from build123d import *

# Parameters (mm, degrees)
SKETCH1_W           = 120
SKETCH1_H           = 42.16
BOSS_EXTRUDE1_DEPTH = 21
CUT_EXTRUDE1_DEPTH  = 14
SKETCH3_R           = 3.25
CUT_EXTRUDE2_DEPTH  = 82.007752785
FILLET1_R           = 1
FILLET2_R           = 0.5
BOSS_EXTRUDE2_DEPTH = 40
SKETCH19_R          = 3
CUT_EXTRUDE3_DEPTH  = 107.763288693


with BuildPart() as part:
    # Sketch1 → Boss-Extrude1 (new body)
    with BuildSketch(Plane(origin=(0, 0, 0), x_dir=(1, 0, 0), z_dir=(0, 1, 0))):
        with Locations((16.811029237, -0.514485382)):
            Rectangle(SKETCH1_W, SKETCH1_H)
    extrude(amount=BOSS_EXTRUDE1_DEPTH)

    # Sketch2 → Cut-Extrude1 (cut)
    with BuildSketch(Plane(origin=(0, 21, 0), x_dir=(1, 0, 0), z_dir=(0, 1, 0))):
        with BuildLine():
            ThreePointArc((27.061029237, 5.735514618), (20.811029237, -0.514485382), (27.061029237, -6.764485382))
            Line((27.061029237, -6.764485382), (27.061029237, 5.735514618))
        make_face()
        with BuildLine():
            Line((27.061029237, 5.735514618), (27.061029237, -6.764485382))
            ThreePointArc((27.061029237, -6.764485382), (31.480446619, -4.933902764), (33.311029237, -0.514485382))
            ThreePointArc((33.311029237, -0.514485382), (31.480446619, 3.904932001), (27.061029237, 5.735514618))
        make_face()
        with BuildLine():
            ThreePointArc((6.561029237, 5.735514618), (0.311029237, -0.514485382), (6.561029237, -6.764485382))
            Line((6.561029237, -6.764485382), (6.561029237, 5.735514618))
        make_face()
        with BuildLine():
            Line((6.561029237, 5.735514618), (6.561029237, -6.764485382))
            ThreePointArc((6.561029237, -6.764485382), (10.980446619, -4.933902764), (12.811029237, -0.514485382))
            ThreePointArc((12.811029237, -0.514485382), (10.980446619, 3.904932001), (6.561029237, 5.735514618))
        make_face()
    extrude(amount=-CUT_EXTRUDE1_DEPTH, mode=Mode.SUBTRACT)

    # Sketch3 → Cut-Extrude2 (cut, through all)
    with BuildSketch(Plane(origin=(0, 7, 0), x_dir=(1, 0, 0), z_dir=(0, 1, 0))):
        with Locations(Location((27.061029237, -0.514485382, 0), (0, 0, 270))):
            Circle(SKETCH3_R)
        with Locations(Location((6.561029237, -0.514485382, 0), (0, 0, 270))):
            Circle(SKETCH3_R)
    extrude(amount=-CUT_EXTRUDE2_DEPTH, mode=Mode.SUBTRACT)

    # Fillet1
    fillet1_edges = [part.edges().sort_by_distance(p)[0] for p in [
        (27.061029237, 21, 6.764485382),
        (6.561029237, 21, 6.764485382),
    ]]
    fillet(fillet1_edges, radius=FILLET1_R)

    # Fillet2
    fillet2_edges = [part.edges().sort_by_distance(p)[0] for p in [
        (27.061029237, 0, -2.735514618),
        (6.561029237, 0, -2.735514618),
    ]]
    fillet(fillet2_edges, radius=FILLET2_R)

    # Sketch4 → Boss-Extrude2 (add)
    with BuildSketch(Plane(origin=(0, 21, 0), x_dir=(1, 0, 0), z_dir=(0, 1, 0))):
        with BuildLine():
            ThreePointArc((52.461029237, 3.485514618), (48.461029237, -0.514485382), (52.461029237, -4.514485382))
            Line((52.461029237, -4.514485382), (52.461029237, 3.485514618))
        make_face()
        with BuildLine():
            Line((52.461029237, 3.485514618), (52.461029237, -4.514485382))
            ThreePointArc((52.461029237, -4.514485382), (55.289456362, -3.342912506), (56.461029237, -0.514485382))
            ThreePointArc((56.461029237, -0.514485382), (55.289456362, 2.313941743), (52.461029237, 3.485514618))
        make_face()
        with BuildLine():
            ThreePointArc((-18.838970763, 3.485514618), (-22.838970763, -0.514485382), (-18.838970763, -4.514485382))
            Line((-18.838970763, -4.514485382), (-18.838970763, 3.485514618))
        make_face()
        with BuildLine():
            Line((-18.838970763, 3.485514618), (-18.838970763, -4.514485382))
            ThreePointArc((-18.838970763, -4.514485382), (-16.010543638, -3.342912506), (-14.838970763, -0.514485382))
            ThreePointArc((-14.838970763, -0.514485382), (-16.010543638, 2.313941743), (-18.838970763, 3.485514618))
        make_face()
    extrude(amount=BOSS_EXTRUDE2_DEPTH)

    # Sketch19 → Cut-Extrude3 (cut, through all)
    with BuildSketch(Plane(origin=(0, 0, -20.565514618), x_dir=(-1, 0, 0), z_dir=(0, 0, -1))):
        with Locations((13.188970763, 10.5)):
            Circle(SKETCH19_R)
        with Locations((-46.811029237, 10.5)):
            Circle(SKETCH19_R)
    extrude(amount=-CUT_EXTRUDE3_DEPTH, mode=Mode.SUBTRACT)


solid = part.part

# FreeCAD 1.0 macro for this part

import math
import FreeCAD as App
import Part
import Sketcher
from FreeCAD import Vector


def edges_at(feature, points):
    """Names of the edges that pass closest to the given points."""
    edges = feature.Shape.Edges
    near = lambda p: min(range(len(edges)), key=lambda i: edges[i].distToShape(Part.Vertex(*p))[0])
    return sorted({f"Edge{near(p) + 1}" for p in points})

doc = App.newDocument("Part")
params = doc.addObject("Spreadsheet::Sheet", "Params")
for row, (alias, value) in enumerate([
    ("sketch1_width", "120 mm"),
    ("sketch1_height", "42.16 mm"),
    ("pad1_length", "21 mm"),
    ("sketch2_radius", "6.25 mm"),
    ("pocket1_length", "14 mm"),
    ("sketch3_diameter", "6.5 mm"),
    ("fillet_radius", "1 mm"),
    ("fillet2_radius", "0.5 mm"),
    ("sketch4_radius", "4 mm"),
    ("pad2_length", "40 mm"),
    ("sketch5_diameter", "6 mm"),
], start=1):
    params.set(f"A{row}", alias)
    params.set(f"B{row}", "=" + value)
    params.setAlias(f"B{row}", alias)

body = doc.addObject("PartDesign::Body", "Body")

# Sketch on XZ plane
sketch1 = body.newObject("Sketcher::SketchObject", "Sketch")
sketch1.AttachmentSupport = (doc.getObject("XZ_Plane"), [""])
sketch1.MapMode = "FlatFace"
sketch1.addGeometry(Part.LineSegment(Vector(-43, -21, 0), Vector(-43, 22, 0)), False)
sketch1.addGeometry(Part.LineSegment(Vector(-43, 22, 0), Vector(77, 22, 0)), False)
sketch1.addGeometry(Part.LineSegment(Vector(77, 22, 0), Vector(77, -21, 0)), False)
sketch1.addGeometry(Part.LineSegment(Vector(77, -21, 0), Vector(-43, -21, 0)), False)
sketch1.addConstraint(Sketcher.Constraint("Coincident", 0, 2, 1, 1))
sketch1.addConstraint(Sketcher.Constraint("Coincident", 1, 2, 2, 1))
sketch1.addConstraint(Sketcher.Constraint("Coincident", 2, 2, 3, 1))
sketch1.addConstraint(Sketcher.Constraint("Coincident", 3, 2, 0, 1))
sketch1.addConstraint(Sketcher.Constraint("Vertical", 0))
sketch1.addConstraint(Sketcher.Constraint("Horizontal", 1))
sketch1.addConstraint(Sketcher.Constraint("Vertical", 2))
sketch1.addConstraint(Sketcher.Constraint("Horizontal", 3))
sketch1.addConstraint(Sketcher.Constraint("DistanceX", 1, 1, 1, 2, 120.0))
sketch1.addConstraint(Sketcher.Constraint("DistanceY", 0, 1, 0, 2, 42.16))
sketch1.addConstraint(Sketcher.Constraint("DistanceX", 0, 2, -1, 1, 43.188971))
sketch1.addConstraint(Sketcher.Constraint("DistanceY", -1, 1, 0, 2, 21.594485))
sketch1.setExpression("Constraints[8]", "Params.sketch1_width")
sketch1.setExpression("Constraints[9]", "Params.sketch1_height")
pad1 = body.newObject("PartDesign::Pad", "Pad")
pad1.Profile = sketch1
pad1.setExpression("Length", "Params.pad1_length")
pad1.Reversed = True

# Sketch on XZ plane
sketch2 = body.newObject("Sketcher::SketchObject", "Sketch001")
sketch2.AttachmentSupport = (doc.getObject("XZ_Plane"), [""])
sketch2.MapMode = "FlatFace"
sketch2.AttachmentOffset = App.Placement(Vector(0, 0, -21), App.Rotation())
sketch2.addGeometry(Part.ArcOfCircle(Part.Circle(Vector(27, 1, 0), Vector(0, 0, 1), 6), math.radians(90), math.radians(270)), False)
sketch2.addGeometry(Part.ArcOfCircle(Part.Circle(Vector(27, 1, 0), Vector(0, 0, 1), 6), math.radians(0), math.radians(90)), False)
sketch2.addGeometry(Part.ArcOfCircle(Part.Circle(Vector(27, 1, 0), Vector(0, 0, 1), 6), math.radians(-90), math.radians(0)), False)
sketch2.addGeometry(Part.ArcOfCircle(Part.Circle(Vector(7, 1, 0), Vector(0, 0, 1), 6), math.radians(90), math.radians(270)), False)
sketch2.addGeometry(Part.ArcOfCircle(Part.Circle(Vector(7, 1, 0), Vector(0, 0, 1), 6), math.radians(0), math.radians(90)), False)
sketch2.addGeometry(Part.ArcOfCircle(Part.Circle(Vector(7, 1, 0), Vector(0, 0, 1), 6), math.radians(-90), math.radians(0)), False)
sketch2.addConstraint(Sketcher.Constraint("Tangent", 0, 1, 1, 2))
sketch2.addConstraint(Sketcher.Constraint("Tangent", 1, 1, 2, 2))
sketch2.addConstraint(Sketcher.Constraint("Tangent", 2, 1, 0, 2))
sketch2.addConstraint(Sketcher.Constraint("Tangent", 3, 1, 4, 2))
sketch2.addConstraint(Sketcher.Constraint("Tangent", 4, 1, 5, 2))
sketch2.addConstraint(Sketcher.Constraint("Tangent", 5, 1, 3, 2))
sketch2.addConstraint(Sketcher.Constraint("Equal", 2, 3))
sketch2.addConstraint(Sketcher.Constraint("Horizontal", 2, 3, 3, 3))
sketch2.addConstraint(Sketcher.Constraint("Horizontal", 5, 3, 1, 1))
sketch2.addConstraint(Sketcher.Constraint("Horizontal", 1, 1, 4, 1))
sketch2.addConstraint(Sketcher.Constraint("Vertical", 2, 3, 0, 1))
sketch2.addConstraint(Sketcher.Constraint("Vertical", 0, 1, 2, 1))
sketch2.addConstraint(Sketcher.Constraint("Vertical", 5, 3, 3, 1))
sketch2.addConstraint(Sketcher.Constraint("Vertical", 3, 1, 5, 1))
sketch2.addConstraint(Sketcher.Constraint("Radius", 0, 6.25))
sketch2.addConstraint(Sketcher.Constraint("DistanceX", 3, 3, 1, 3, 20.5))
sketch2.addConstraint(Sketcher.Constraint("DistanceX", -1, 1, 0, 3, 27.061029))
sketch2.addConstraint(Sketcher.Constraint("DistanceY", -1, 1, 0, 3, 0.514485))
sketch2.setExpression("Constraints[14]", "Params.sketch2_radius")
pocket1 = body.newObject("PartDesign::Pocket", "Pocket")
pocket1.Profile = sketch2
pocket1.setExpression("Length", "Params.pocket1_length")
pocket1.Reversed = True

# Sketch on XZ plane
sketch3 = body.newObject("Sketcher::SketchObject", "Sketch002")
sketch3.AttachmentSupport = (doc.getObject("XZ_Plane"), [""])
sketch3.MapMode = "FlatFace"
sketch3.AttachmentOffset = App.Placement(Vector(0, 0, -7), App.Rotation())
sketch3.addGeometry(Part.Circle(Vector(27.1, 0.5, 0), Vector(0, 0, 1), 3.2), False)
sketch3.addGeometry(Part.Circle(Vector(6.6, 0.5, 0), Vector(0, 0, 1), 3.2), False)
sketch3.addConstraint(Sketcher.Constraint("Equal", 0, 1))
sketch3.addConstraint(Sketcher.Constraint("Horizontal", 0, 3, 1, 3))
sketch3.addConstraint(Sketcher.Constraint("Diameter", 0, 6.5))
sketch3.addConstraint(Sketcher.Constraint("DistanceX", 1, 3, 0, 3, 20.5))
sketch3.addConstraint(Sketcher.Constraint("DistanceX", -1, 1, 0, 3, 27.061029))
sketch3.addConstraint(Sketcher.Constraint("DistanceY", -1, 1, 0, 3, 0.514485))
sketch3.setExpression("Constraints[2]", "Params.sketch3_diameter")
pocket2 = body.newObject("PartDesign::Pocket", "Pocket001")
pocket2.Profile = sketch3
pocket2.Type = "ThroughAll"
pocket2.Reversed = True
doc.recompute()

fillet = body.newObject("PartDesign::Fillet", "Fillet")
fillet.Base = (pocket2, edges_at(pocket2, [(20.811, 21, 0.514), (0.311, 21, 0.514)]))
fillet.setExpression("Radius", "Params.fillet_radius")
doc.recompute()

fillet2 = body.newObject("PartDesign::Fillet", "Fillet001")
fillet2.Base = (fillet, edges_at(fillet, [(27.061, 0, -2.736), (6.561, 0, -2.736)]))
fillet2.setExpression("Radius", "Params.fillet2_radius")

# Sketch on XZ plane
sketch4 = body.newObject("Sketcher::SketchObject", "Sketch003")
sketch4.AttachmentSupport = (doc.getObject("XZ_Plane"), [""])
sketch4.MapMode = "FlatFace"
sketch4.AttachmentOffset = App.Placement(Vector(0, 0, -21), App.Rotation())
sketch4.addGeometry(Part.ArcOfCircle(Part.Circle(Vector(52.5, 0.5, 0), Vector(0, 0, 1), 4), math.radians(90), math.radians(270)), False)
sketch4.addGeometry(Part.ArcOfCircle(Part.Circle(Vector(52.5, 0.5, 0), Vector(0, 0, 1), 4), math.radians(0), math.radians(90)), False)
sketch4.addGeometry(Part.ArcOfCircle(Part.Circle(Vector(52.5, 0.5, 0), Vector(0, 0, 1), 4), math.radians(-90), math.radians(0)), False)
sketch4.addGeometry(Part.ArcOfCircle(Part.Circle(Vector(-18.8, 0.5, 0), Vector(0, 0, 1), 4), math.radians(90), math.radians(270)), False)
sketch4.addGeometry(Part.ArcOfCircle(Part.Circle(Vector(-18.8, 0.5, 0), Vector(0, 0, 1), 4), math.radians(0), math.radians(90)), False)
sketch4.addGeometry(Part.ArcOfCircle(Part.Circle(Vector(-18.8, 0.5, 0), Vector(0, 0, 1), 4), math.radians(-90), math.radians(0)), False)
sketch4.addConstraint(Sketcher.Constraint("Tangent", 0, 1, 1, 2))
sketch4.addConstraint(Sketcher.Constraint("Tangent", 1, 1, 2, 2))
sketch4.addConstraint(Sketcher.Constraint("Tangent", 2, 1, 0, 2))
sketch4.addConstraint(Sketcher.Constraint("Tangent", 3, 1, 4, 2))
sketch4.addConstraint(Sketcher.Constraint("Tangent", 4, 1, 5, 2))
sketch4.addConstraint(Sketcher.Constraint("Tangent", 5, 1, 3, 2))
sketch4.addConstraint(Sketcher.Constraint("Equal", 2, 3))
sketch4.addConstraint(Sketcher.Constraint("Horizontal", 2, 3, 3, 3))
sketch4.addConstraint(Sketcher.Constraint("Horizontal", 5, 3, 1, 1))
sketch4.addConstraint(Sketcher.Constraint("Horizontal", 1, 1, 4, 1))
sketch4.addConstraint(Sketcher.Constraint("Vertical", 2, 3, 0, 1))
sketch4.addConstraint(Sketcher.Constraint("Vertical", 0, 1, 2, 1))
sketch4.addConstraint(Sketcher.Constraint("Vertical", 5, 3, 3, 1))
sketch4.addConstraint(Sketcher.Constraint("Vertical", 3, 1, 5, 1))
sketch4.addConstraint(Sketcher.Constraint("Radius", 0, 4.0))
sketch4.addConstraint(Sketcher.Constraint("DistanceX", 3, 3, 1, 3, 71.3))
sketch4.addConstraint(Sketcher.Constraint("DistanceX", -1, 1, 0, 3, 52.461029))
sketch4.addConstraint(Sketcher.Constraint("DistanceY", -1, 1, 0, 3, 0.514485))
sketch4.setExpression("Constraints[14]", "Params.sketch4_radius")
pad2 = body.newObject("PartDesign::Pad", "Pad001")
pad2.Profile = sketch4
pad2.setExpression("Length", "Params.pad2_length")
pad2.Reversed = True

# Sketch on XY plane
sketch5 = body.newObject("Sketcher::SketchObject", "Sketch004")
sketch5.AttachmentSupport = (doc.getObject("XY_Plane"), [""])
sketch5.MapMode = "FlatFace"
sketch5.AttachmentOffset = App.Placement(Vector(0, 0, -20.565515), App.Rotation())
sketch5.addGeometry(Part.Circle(Vector(-13.2, 10.5, 0), Vector(0, 0, 1), 3), False)
sketch5.addGeometry(Part.Circle(Vector(46.8, 10.5, 0), Vector(0, 0, 1), 3), False)
sketch5.addConstraint(Sketcher.Constraint("Equal", 0, 1))
sketch5.addConstraint(Sketcher.Constraint("Horizontal", 0, 3, 1, 3))
sketch5.addConstraint(Sketcher.Constraint("Diameter", 0, 6.0))
sketch5.addConstraint(Sketcher.Constraint("DistanceX", 0, 3, 1, 3, 60.0))
sketch5.addConstraint(Sketcher.Constraint("DistanceY", -1, 1, 0, 3, 10.5))
sketch5.addConstraint(Sketcher.Constraint("DistanceX", 0, 3, -1, 1, 13.188971))
sketch5.setExpression("Constraints[2]", "Params.sketch5_diameter")
pocket3 = body.newObject("PartDesign::Pocket", "Pocket002")
pocket3.Profile = sketch5
pocket3.Type = "ThroughAll"
pocket3.Reversed = True

doc.recompute()
